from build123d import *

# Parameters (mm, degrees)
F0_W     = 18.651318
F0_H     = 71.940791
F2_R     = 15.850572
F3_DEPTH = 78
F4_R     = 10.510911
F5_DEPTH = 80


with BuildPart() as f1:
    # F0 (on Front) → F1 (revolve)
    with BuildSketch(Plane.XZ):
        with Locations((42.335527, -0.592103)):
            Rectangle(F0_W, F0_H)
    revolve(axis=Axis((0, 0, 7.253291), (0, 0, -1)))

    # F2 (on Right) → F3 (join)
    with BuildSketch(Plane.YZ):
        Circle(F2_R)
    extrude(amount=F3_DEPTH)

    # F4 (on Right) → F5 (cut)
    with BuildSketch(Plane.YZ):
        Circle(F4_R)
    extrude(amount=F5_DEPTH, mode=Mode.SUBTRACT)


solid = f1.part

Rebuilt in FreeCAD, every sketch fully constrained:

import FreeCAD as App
import Part
import Sketcher

V = App.Vector


def add_polygon(sketch, points):
    """Adds a closed chain of lines whose ends are joined by coincident constraints."""
    first, n = sketch.GeometryCount, len(points)
    for a, b in zip(points, points[1:] + points[:1]):
        sketch.addGeometry(Part.LineSegment(App.Vector(*a, 0), App.Vector(*b, 0)), False)
    for i in range(n):
        sketch.addConstraint(Sketcher.Constraint("Coincident", first + i, 2, first + (i + 1) % n, 1))

doc = App.newDocument("Part")
params = doc.addObject("Spreadsheet::Sheet", "Params")
for row, (alias, value) in enumerate([
    ("revolution_angle", "360 deg"),
    ("pad1_length", "78 mm"),
    ("pocket1_length", "80 mm"),
], start=1):
    params.set(f"A{row}", alias)
    params.set(f"B{row}", "=" + value)
    params.setAlias(f"B{row}", alias)

body = doc.addObject("PartDesign::Body", "Body")

# Sketch on XZ plane
sketch1 = body.newObject("Sketcher::SketchObject", "Sketch")
sketch1.AttachmentSupport = (doc.getObject("XZ_Plane"), [""])
sketch1.MapMode = "FlatFace"
add_polygon(sketch1, [(33.009868, 35.378293), (33.009868, -36.562498), (51.661186, -36.562498), (51.661186, 35.378293)])  # lines 0-3
sketch1.addConstraint([
    Sketcher.Constraint("Vertical", 0),
    Sketcher.Constraint("Horizontal", 1),
    Sketcher.Constraint("Vertical", 2),
    Sketcher.Constraint("Horizontal", 3),
    Sketcher.Constraint("DistanceX", 1, 1, 1, 2, 18.651318),
    Sketcher.Constraint("DistanceY", 0, 2, 0, 1, 71.940791),
    Sketcher.Constraint("DistanceY", 0, 2, -1, 1, 36.562498),
    Sketcher.Constraint("DistanceX", -1, 1, 0, 2, 33.009868),
])
revolution = body.newObject("PartDesign::Revolution", "Revolution")
revolution.Profile = sketch1
revolution.ReferenceAxis = (sketch1, ["V_Axis"])
revolution.setExpression("Angle", "Params.revolution_angle")

# Sketch on YZ plane
sketch2 = body.newObject("Sketcher::SketchObject", "Sketch001")
sketch2.AttachmentSupport = (doc.getObject("YZ_Plane"), [""])
sketch2.MapMode = "FlatFace"
sketch2.addGeometry(Part.Circle(V(0, 0, 0), V(0, 0, 1), 15.850572), False)
sketch2.addConstraint([
    Sketcher.Constraint("Coincident", 0, 3, -1, 1),
    Sketcher.Constraint("Diameter", 0, 31.701144),
])
pad1 = body.newObject("PartDesign::Pad", "Pad")
pad1.Profile = sketch2
pad1.setExpression("Length", "Params.pad1_length")

# Sketch on YZ plane
sketch3 = body.newObject("Sketcher::SketchObject", "Sketch002")
sketch3.AttachmentSupport = (doc.getObject("YZ_Plane"), [""])
sketch3.MapMode = "FlatFace"
sketch3.addGeometry(Part.Circle(V(0, 0, 0), V(0, 0, 1), 10.510911), False)
sketch3.addConstraint([
    Sketcher.Constraint("Coincident", 0, 3, -1, 1),
    Sketcher.Constraint("Diameter", 0, 21.021822),
])
pocket1 = body.newObject("PartDesign::Pocket", "Pocket")
pocket1.Profile = sketch3
pocket1.setExpression("Length", "Params.pocket1_length")
pocket1.Reversed = True

doc.recompute()
